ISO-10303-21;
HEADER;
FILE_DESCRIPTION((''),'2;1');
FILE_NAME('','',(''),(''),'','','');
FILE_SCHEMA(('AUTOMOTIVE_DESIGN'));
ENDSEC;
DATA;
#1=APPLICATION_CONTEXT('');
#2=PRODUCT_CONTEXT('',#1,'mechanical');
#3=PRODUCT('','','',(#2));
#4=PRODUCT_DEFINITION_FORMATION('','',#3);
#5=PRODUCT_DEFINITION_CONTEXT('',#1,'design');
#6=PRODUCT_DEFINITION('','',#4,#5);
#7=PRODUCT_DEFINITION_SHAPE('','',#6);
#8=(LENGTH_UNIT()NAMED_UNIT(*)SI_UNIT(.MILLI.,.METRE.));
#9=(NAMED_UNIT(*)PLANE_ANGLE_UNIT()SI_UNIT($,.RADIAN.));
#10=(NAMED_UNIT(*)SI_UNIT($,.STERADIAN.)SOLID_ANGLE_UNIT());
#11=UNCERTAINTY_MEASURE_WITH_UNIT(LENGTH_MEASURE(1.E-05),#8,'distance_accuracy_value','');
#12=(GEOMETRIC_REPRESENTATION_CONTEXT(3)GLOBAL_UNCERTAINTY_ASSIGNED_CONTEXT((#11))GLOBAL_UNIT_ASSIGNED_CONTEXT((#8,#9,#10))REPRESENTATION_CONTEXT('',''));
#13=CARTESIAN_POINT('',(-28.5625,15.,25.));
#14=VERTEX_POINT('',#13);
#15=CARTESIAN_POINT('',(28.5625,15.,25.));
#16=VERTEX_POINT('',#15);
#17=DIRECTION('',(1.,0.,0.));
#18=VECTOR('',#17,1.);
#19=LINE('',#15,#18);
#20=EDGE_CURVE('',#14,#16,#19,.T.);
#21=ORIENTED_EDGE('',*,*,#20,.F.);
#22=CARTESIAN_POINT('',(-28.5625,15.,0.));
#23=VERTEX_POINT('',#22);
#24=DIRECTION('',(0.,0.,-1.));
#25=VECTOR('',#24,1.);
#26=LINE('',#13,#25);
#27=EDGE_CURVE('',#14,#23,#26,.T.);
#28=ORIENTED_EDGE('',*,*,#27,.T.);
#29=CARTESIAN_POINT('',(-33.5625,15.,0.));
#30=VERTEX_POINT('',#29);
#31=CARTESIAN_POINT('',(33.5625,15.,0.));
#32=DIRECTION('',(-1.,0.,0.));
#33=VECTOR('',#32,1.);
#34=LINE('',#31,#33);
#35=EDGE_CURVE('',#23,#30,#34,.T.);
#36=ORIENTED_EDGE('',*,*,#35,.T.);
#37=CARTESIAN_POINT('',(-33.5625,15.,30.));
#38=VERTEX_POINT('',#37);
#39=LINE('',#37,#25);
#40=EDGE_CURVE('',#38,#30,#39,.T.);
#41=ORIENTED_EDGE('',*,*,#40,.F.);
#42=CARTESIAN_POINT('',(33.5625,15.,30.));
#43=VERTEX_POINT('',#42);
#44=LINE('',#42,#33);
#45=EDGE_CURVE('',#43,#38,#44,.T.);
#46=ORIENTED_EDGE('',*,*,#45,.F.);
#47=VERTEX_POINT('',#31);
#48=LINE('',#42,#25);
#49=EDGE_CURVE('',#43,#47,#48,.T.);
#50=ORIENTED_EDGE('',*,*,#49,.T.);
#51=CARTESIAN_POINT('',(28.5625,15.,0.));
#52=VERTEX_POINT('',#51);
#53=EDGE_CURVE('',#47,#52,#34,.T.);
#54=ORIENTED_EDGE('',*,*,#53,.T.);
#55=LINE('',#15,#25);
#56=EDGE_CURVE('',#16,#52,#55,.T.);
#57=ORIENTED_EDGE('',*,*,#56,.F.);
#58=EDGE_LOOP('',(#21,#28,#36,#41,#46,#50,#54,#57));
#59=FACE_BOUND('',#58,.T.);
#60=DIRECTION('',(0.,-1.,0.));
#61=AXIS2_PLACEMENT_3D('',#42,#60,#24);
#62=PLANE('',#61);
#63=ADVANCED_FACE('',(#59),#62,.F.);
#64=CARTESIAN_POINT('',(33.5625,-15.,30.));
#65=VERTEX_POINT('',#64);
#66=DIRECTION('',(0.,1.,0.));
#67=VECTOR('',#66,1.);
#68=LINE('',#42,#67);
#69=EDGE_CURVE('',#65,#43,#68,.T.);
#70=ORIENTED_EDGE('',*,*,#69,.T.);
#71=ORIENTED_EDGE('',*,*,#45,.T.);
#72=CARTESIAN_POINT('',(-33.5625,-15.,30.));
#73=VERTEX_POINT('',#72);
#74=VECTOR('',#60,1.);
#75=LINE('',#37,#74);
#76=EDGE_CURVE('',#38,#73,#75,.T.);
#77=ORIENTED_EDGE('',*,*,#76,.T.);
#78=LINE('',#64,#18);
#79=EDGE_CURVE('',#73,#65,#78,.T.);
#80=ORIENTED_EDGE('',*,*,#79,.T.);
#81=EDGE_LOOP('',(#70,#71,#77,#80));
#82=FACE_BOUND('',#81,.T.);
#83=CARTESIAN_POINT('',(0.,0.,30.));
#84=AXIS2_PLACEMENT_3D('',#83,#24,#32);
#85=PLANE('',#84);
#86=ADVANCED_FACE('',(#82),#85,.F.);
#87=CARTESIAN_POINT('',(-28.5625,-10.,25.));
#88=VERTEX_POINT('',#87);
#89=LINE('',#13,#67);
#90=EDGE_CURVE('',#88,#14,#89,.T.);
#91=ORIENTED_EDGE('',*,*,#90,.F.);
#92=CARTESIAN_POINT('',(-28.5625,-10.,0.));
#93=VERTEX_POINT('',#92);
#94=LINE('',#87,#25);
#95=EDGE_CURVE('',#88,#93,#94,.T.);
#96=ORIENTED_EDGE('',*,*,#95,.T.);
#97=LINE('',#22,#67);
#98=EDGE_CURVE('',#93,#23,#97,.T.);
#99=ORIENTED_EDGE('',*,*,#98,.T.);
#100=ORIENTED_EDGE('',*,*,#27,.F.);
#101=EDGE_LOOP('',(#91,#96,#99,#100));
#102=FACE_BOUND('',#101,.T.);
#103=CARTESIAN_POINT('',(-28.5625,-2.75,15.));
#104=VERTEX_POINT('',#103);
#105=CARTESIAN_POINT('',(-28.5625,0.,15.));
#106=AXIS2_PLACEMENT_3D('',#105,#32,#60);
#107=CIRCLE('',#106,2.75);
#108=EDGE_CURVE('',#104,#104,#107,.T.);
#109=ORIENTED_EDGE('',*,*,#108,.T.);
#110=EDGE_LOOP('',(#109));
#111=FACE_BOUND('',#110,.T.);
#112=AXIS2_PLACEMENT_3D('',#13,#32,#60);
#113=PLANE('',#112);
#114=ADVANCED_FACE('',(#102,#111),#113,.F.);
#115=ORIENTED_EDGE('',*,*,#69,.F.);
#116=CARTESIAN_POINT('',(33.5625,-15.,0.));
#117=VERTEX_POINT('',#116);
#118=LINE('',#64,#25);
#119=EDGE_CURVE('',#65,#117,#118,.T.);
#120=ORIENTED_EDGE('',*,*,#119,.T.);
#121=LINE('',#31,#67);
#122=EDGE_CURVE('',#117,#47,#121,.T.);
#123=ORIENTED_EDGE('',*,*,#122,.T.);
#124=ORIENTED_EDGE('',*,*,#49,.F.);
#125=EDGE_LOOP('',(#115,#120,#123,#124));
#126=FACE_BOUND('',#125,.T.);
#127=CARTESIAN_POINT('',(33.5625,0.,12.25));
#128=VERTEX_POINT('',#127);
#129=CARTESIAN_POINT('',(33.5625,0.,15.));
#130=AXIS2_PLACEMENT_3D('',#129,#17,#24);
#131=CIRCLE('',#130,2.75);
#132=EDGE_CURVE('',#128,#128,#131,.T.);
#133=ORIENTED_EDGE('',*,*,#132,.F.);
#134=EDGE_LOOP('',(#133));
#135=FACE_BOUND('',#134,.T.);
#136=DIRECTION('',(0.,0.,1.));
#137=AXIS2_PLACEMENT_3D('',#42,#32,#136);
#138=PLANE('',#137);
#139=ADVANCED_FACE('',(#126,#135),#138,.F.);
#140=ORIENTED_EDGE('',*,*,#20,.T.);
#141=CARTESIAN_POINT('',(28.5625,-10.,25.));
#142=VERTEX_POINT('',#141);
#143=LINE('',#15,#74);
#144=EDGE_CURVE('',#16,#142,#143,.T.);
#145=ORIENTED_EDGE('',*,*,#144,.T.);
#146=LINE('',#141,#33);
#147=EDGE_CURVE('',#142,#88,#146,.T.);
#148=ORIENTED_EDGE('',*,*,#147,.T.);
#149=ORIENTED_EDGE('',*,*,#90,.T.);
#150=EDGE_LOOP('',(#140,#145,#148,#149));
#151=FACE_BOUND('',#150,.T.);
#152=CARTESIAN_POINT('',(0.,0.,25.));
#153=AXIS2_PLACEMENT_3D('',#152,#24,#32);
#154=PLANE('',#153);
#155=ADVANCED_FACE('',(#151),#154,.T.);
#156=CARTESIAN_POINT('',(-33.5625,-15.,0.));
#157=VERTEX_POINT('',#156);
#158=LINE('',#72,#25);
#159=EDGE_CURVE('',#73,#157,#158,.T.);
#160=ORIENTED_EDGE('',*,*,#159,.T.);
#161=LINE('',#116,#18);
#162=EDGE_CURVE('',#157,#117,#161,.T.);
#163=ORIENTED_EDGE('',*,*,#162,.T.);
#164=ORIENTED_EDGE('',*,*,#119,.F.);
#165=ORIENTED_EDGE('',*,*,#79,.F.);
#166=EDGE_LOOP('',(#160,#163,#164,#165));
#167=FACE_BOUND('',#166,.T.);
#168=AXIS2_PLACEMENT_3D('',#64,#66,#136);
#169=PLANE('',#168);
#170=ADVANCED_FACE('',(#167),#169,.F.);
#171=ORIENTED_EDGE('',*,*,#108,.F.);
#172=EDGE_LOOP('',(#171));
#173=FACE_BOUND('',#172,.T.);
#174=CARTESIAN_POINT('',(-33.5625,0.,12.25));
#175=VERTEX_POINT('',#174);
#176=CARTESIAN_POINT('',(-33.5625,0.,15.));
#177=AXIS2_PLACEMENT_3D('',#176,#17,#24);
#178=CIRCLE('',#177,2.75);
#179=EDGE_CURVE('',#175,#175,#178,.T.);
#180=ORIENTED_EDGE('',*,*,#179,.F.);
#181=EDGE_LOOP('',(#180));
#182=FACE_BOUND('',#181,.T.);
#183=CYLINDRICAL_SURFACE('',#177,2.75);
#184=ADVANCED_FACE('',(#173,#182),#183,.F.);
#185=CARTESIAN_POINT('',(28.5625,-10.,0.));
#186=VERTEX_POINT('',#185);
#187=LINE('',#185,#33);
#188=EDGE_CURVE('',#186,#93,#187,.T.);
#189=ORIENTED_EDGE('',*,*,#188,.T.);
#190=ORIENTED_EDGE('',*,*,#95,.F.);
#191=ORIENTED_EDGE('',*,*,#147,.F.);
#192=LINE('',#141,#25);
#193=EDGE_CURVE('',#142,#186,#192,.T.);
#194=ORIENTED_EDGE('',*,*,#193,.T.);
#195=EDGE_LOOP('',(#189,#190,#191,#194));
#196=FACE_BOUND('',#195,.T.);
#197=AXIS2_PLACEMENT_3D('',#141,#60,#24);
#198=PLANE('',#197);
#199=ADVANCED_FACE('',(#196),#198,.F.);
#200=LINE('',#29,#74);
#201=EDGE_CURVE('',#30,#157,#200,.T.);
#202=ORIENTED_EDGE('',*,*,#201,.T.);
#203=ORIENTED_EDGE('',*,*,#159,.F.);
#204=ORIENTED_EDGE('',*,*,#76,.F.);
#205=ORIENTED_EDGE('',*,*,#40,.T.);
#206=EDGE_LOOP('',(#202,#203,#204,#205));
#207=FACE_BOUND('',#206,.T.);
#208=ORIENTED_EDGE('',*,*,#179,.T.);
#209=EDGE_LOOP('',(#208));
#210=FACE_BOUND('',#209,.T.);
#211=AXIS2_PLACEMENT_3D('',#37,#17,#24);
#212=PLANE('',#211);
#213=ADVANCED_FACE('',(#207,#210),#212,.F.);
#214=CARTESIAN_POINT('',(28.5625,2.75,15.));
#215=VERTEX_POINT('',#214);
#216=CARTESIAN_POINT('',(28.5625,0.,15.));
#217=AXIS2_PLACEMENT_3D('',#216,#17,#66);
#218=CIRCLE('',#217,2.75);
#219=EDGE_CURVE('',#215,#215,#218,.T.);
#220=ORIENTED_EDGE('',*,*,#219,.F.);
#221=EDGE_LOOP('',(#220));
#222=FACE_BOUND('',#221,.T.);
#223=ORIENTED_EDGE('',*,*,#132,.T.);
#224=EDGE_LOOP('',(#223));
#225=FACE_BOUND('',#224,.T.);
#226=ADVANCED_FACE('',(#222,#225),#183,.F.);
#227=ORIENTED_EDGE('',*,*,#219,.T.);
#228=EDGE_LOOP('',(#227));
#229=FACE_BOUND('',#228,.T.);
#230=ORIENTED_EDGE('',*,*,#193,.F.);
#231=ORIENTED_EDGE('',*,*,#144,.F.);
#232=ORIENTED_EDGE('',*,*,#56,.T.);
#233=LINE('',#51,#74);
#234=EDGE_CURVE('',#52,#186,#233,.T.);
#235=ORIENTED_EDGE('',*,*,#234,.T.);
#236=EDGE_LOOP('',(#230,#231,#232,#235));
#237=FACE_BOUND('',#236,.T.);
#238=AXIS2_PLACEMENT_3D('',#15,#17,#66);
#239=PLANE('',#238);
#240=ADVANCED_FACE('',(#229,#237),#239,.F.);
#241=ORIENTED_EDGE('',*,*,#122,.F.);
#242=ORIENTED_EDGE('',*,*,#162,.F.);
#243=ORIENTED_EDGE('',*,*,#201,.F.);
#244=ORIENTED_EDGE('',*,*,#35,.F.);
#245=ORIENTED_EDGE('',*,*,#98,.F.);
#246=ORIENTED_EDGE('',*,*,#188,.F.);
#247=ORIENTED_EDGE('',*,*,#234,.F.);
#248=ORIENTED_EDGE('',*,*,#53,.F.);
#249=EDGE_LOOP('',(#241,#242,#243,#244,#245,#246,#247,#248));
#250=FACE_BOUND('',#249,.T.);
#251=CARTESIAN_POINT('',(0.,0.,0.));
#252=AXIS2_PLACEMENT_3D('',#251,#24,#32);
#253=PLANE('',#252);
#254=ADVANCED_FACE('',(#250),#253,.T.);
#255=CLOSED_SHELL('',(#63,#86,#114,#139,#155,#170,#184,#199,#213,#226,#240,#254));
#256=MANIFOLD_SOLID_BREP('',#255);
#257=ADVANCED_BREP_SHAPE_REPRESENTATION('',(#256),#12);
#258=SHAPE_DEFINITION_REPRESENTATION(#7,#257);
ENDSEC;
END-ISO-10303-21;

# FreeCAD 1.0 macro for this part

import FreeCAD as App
import Part
import Sketcher

V = App.Vector
Q = App.Units.Quantity

doc = App.newDocument("Part")
params = doc.addObject("Spreadsheet::Sheet", "Params")
for row, (alias, value) in enumerate([
    ("sketch1_height", "30 mm"),
    ("pad1_length", "30 mm"),
    ("sketch2_height", "25 mm"),
    ("pocket1_length", "25 mm"),
    ("sketch3_diameter", "5.5 mm"),
], start=1):
    params.set(f"A{row}", alias)
    params.set(f"B{row}", "=" + value)
    params.setAlias(f"B{row}", alias)

body = doc.addObject("PartDesign::Body", "Body")

# Sketch on XY plane
sketch1 = body.newObject("Sketcher::SketchObject", "Sketch")
sketch1.AttachmentSupport = (doc.getObject("XY_Plane"), [""])
sketch1.MapMode = "FlatFace"
sketch1.addGeometry([
    Part.LineSegment(V(-33.5625, 15, 0), V(-33.5625, -15, 0)),
    Part.LineSegment(V(-33.5625, -15, 0), V(33.5625, -15, 0)),
    Part.LineSegment(V(33.5625, -15, 0), V(33.5625, 15, 0)),
    Part.LineSegment(V(33.5625, 15, 0), V(-33.5625, 15, 0)),
], False)
sketch1.addConstraint([
    Sketcher.Constraint("Coincident", 0, 2, 1, 1),
    Sketcher.Constraint("Coincident", 1, 2, 2, 1),
    Sketcher.Constraint("Coincident", 2, 2, 3, 1),
    Sketcher.Constraint("Coincident", 3, 2, 0, 1),
    Sketcher.Constraint("Vertical", 0),
    Sketcher.Constraint("Horizontal", 1),
    Sketcher.Constraint("Vertical", 2),
    Sketcher.Constraint("Horizontal", 3),
    Sketcher.Constraint("Symmetric", 0, 2, 2, 2, -1, 1),
    Sketcher.Constraint("DistanceY", 0, 2, 0, 1, Q("30 mm")),
    Sketcher.Constraint("DistanceX", 1, 1, 1, 2, Q("67.125 mm")),
])
sketch1.setExpression("Constraints[9]", "Params.sketch1_height")
pad1 = body.newObject("PartDesign::Pad", "Pad")
pad1.Profile = sketch1
pad1.setExpression("Length", "Params.pad1_length")

# Sketch on XY plane
sketch2 = body.newObject("Sketcher::SketchObject", "Sketch001")
sketch2.AttachmentSupport = (doc.getObject("XY_Plane"), [""])
sketch2.MapMode = "FlatFace"
sketch2.addGeometry([
    Part.LineSegment(V(28.5625, 15, 0), V(28.5625, -10, 0)),
    Part.LineSegment(V(28.5625, -10, 0), V(-28.5625, -10, 0)),
    Part.LineSegment(V(-28.5625, -10, 0), V(-28.5625, 15, 0)),
    Part.LineSegment(V(-28.5625, 15, 0), V(28.5625, 15, 0)),
], False)
sketch2.addConstraint([
    Sketcher.Constraint("Coincident", 0, 2, 1, 1),
    Sketcher.Constraint("Coincident", 1, 2, 2, 1),
    Sketcher.Constraint("Coincident", 2, 2, 3, 1),
    Sketcher.Constraint("Coincident", 3, 2, 0, 1),
    Sketcher.Constraint("Vertical", 0),
    Sketcher.Constraint("Horizontal", 1),
    Sketcher.Constraint("Vertical", 2),
    Sketcher.Constraint("Horizontal", 3),
    Sketcher.Constraint("DistanceY", 0, 2, 0, 1, Q("25 mm")),
    Sketcher.Constraint("DistanceY", 0, 2, -1, 1, Q("10 mm")),
    Sketcher.Constraint("DistanceX", 1, 2, 1, 1, Q("57.125 mm")),
    Sketcher.Constraint("DistanceX", -1, 1, 0, 2, Q("28.5625 mm")),
])
sketch2.setExpression("Constraints[8]", "Params.sketch2_height")
pocket1 = body.newObject("PartDesign::Pocket", "Pocket")
pocket1.Profile = sketch2
pocket1.setExpression("Length", "Params.pocket1_length")
pocket1.Reversed = True

# Sketch on YZ plane
sketch3 = body.newObject("Sketcher::SketchObject", "Sketch002")
sketch3.AttachmentSupport = (doc.getObject("YZ_Plane"), [""])
sketch3.MapMode = "FlatFace"
sketch3.AttachmentOffset = App.Placement(V(0, 0, 33.5625), App.Rotation())
sketch3.addGeometry(Part.Circle(V(0, 15, 0), V(0, 0, 1), 2.75), False)
sketch3.addConstraint([
    Sketcher.Constraint("PointOnObject", 0, 3, -2),
    Sketcher.Constraint("Diameter", 0, Q("5.5 mm")),
    Sketcher.Constraint("DistanceY", -1, 1, 0, 3, Q("15 mm")),
])
sketch3.setExpression("Constraints[1]", "Params.sketch3_diameter")
pocket2 = body.newObject("PartDesign::Pocket", "Pocket001")
pocket2.Profile = sketch3
pocket2.Type = "ThroughAll"

doc.recompute()
